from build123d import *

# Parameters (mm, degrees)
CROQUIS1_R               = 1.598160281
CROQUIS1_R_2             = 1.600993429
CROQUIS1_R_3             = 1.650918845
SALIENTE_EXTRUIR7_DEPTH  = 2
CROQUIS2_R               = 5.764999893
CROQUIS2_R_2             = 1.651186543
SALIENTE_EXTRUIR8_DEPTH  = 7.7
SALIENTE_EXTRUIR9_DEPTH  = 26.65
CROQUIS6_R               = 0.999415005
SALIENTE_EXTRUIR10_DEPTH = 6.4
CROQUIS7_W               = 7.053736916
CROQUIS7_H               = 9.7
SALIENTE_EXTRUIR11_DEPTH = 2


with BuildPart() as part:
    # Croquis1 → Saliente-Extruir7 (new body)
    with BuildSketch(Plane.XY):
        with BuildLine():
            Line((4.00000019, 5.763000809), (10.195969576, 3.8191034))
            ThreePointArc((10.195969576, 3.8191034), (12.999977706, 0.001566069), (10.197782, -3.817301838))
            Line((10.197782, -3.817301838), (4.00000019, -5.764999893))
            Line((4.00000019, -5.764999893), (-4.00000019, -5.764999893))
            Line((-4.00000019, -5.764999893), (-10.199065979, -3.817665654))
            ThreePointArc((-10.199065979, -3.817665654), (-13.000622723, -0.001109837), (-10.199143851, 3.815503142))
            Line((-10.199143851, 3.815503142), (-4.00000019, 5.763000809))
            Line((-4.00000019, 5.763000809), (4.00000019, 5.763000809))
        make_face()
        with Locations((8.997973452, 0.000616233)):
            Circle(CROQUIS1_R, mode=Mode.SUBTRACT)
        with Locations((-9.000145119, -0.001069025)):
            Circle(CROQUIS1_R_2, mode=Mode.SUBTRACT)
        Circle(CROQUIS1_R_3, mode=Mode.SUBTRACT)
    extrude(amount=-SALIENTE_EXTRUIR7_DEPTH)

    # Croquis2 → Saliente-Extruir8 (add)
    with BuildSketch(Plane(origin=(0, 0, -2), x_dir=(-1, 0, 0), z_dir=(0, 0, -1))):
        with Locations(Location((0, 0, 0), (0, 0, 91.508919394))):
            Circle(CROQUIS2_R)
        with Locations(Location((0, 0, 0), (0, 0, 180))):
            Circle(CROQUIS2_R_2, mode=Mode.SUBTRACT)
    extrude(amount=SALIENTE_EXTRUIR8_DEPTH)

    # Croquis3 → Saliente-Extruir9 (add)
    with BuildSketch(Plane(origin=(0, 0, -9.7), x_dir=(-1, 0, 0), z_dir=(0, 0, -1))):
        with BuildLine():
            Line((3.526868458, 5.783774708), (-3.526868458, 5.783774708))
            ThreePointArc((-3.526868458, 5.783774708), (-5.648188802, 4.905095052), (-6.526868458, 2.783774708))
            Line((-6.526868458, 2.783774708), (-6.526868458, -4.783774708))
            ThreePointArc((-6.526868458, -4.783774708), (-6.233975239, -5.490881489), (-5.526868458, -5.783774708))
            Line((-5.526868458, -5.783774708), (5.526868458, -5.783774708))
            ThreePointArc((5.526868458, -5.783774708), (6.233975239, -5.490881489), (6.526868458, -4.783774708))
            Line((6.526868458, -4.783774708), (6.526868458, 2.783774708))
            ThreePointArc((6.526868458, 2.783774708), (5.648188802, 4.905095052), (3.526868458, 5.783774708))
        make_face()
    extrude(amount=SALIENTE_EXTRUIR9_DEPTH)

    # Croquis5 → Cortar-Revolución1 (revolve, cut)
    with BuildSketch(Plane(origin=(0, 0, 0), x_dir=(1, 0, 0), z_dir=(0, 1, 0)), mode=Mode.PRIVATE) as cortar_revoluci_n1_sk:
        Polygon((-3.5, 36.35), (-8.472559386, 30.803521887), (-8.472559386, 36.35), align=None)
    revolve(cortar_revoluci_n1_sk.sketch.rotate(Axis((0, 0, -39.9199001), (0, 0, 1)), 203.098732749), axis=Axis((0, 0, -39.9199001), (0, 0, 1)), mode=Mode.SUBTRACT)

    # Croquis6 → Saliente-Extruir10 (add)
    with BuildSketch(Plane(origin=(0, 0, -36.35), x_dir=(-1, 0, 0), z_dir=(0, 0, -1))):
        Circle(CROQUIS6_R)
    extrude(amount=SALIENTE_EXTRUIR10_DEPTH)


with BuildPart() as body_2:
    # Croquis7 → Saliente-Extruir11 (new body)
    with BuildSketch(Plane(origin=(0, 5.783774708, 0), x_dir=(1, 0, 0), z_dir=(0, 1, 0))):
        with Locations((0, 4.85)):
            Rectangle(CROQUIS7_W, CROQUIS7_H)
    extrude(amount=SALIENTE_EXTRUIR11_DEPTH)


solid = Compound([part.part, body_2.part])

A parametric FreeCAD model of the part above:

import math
import FreeCAD as App
import Part
import Sketcher

doc = App.newDocument("Part")
params = doc.addObject("Spreadsheet::Sheet", "Params")
for row, (alias, value) in enumerate([
    ("sketch1_width", "8 mm"),
    ("pad1_length", "2 mm"),
    ("sketch2_diameter", "11.53 mm"),
    ("pad2_length", "7.7 mm"),
    ("sketch3_radius", "3 mm"),
    ("sketch3_radius2", "1 mm"),
    ("pad3_length", "26.65 mm"),
    ("groove_angle", "360 deg"),
    ("pad4_length", "6.4 mm"),
    ("sketch6_height", "9.7 mm"),
    ("pad5_length", "2 mm"),
], start=1):
    params.set(f"A{row}", alias)
    params.set(f"B{row}", "=" + value)
    params.setAlias(f"B{row}", alias)

body = doc.addObject("PartDesign::Body", "Body")

sketch1 = doc.addObject("Sketcher::SketchObject", "Sketch")
body.addObject(sketch1)
sketch1.AttachmentSupport = (doc.XY_Plane, [""])
sketch1.MapMode = "FlatFace"
sketch1.addGeometry([
    Part.LineSegment(App.Vector(10.2, 3.8, 0), App.Vector(4, 5.8, 0)),
    Part.LineSegment(App.Vector(4, 5.8, 0), App.Vector(-4, 5.8, 0)),
    Part.LineSegment(App.Vector(-4, 5.8, 0), App.Vector(-10.2, 3.8, 0)),
    Part.ArcOfCircle(Part.Circle(App.Vector(-9, 0, 0), App.Vector(0, 0, 1), 4), math.radians(107), math.radians(253)),
    Part.LineSegment(App.Vector(-10.2, -3.8, 0), App.Vector(-4, -5.8, 0)),
    Part.LineSegment(App.Vector(-4, -5.8, 0), App.Vector(4, -5.8, 0)),
    Part.LineSegment(App.Vector(4, -5.8, 0), App.Vector(10.2, -3.8, 0)),
    Part.ArcOfCircle(Part.Circle(App.Vector(9, 0, 0), App.Vector(0, 0, 1), 4), math.radians(-73), math.radians(73)),
    Part.Circle(App.Vector(-9, 0, 0), App.Vector(0, 0, 1), 1.6),
    Part.Circle(App.Vector(9, 0, 0), App.Vector(0, 0, 1), 1.6),
    Part.Circle(App.Vector(0, 0, 0), App.Vector(0, 0, 1), 1.7),
], False)
sketch1.addConstraint([
    Sketcher.Constraint("Coincident", 0, 2, 1, 1),
    Sketcher.Constraint("Coincident", 1, 2, 2, 1),
    Sketcher.Constraint("Tangent", 2, 2, 3, 1),
    Sketcher.Constraint("Tangent", 3, 2, 4, 1),
    Sketcher.Constraint("Coincident", 4, 2, 5, 1),
    Sketcher.Constraint("Coincident", 5, 2, 6, 1),
    Sketcher.Constraint("Tangent", 6, 2, 7, 1),
    Sketcher.Constraint("Tangent", 7, 2, 0, 1),
    Sketcher.Constraint("Horizontal", 1),
    Sketcher.Constraint("Horizontal", 5),
    Sketcher.Constraint("Coincident", 10, 3, -1, 1),
    Sketcher.Constraint("Coincident", 8, 3, 3, 3),
    Sketcher.Constraint("Coincident", 9, 3, 7, 3),
    Sketcher.Constraint("Vertical", 1, 2, 4, 2),
    Sketcher.Constraint("Vertical", 0, 2, 5, 2),
    Sketcher.Constraint("DistanceX", 1, 2, 1, 1, 8.0),
    Sketcher.Constraint("DistanceX", -1, 1, 0, 2, 4.0),
    Sketcher.Constraint("Diameter", 9, 3.196321),
    Sketcher.Constraint("Diameter", 8, 3.201987),
    Sketcher.Constraint("Diameter", 10, 3.301838),
    Sketcher.Constraint("DistanceY", -1, 1, 0, 2, 5.763001),
    Sketcher.Constraint("DistanceY", 4, 2, -1, 1, 5.765),
    Sketcher.Constraint("Radius", 3, 4.000478),
    Sketcher.Constraint("Radius", 7, 4.002004),
    Sketcher.Constraint("DistanceX", 2, 2, 3, 3, 1.198999),
    Sketcher.Constraint("DistanceY", 6, 2, -1, 1, 3.817302),
    Sketcher.Constraint("Distance", 0, 6.493749),
    Sketcher.Constraint("DistanceY", 3, 3, -1, 1, 0.001069),
])
sketch1.setExpression("Constraints[15]", "Params.sketch1_width")
pad1 = doc.addObject("PartDesign::Pad", "Pad")
body.addObject(pad1)
pad1.Profile = sketch1
pad1.setExpression("Length", "Params.pad1_length")
pad1.Reversed = True

sketch2 = doc.addObject("Sketcher::SketchObject", "Sketch001")
body.addObject(sketch2)
sketch2.AttachmentSupport = (doc.XY_Plane, [""])
sketch2.MapMode = "FlatFace"
sketch2.AttachmentOffset = App.Placement(App.Vector(0, 0, -2), App.Rotation())
sketch2.addGeometry([
    Part.Circle(App.Vector(0, 0, 0), App.Vector(0, 0, 1), 5.8),
    Part.Circle(App.Vector(0, 0, 0), App.Vector(0, 0, 1), 1.7),
], False)
sketch2.addConstraint([
    Sketcher.Constraint("Coincident", 0, 3, -1, 1),
    Sketcher.Constraint("Coincident", 1, 3, -1, 1),
    Sketcher.Constraint("Diameter", 0, 11.53),
    Sketcher.Constraint("Diameter", 1, 3.302373),
])
sketch2.setExpression("Constraints[2]", "Params.sketch2_diameter")
pad2 = doc.addObject("PartDesign::Pad", "Pad001")
body.addObject(pad2)
pad2.Profile = sketch2
pad2.setExpression("Length", "Params.pad2_length")
pad2.Reversed = True

sketch3 = doc.addObject("Sketcher::SketchObject", "Sketch002")
body.addObject(sketch3)
sketch3.AttachmentSupport = (doc.XY_Plane, [""])
sketch3.MapMode = "FlatFace"
sketch3.AttachmentOffset = App.Placement(App.Vector(0, 0, -9.7), App.Rotation())
sketch3.addGeometry([
    Part.LineSegment(App.Vector(-3.5, 5.8, 0), App.Vector(3.5, 5.8, 0)),
    Part.ArcOfCircle(Part.Circle(App.Vector(3.5, 2.8, 0), App.Vector(0, 0, 1), 3), math.radians(0), math.radians(90)),
    Part.LineSegment(App.Vector(6.5, 2.8, 0), App.Vector(6.5, -4.8, 0)),
    Part.ArcOfCircle(Part.Circle(App.Vector(5.5, -4.8, 0), App.Vector(0, 0, 1), 1), math.radians(-90), math.radians(0)),
    Part.LineSegment(App.Vector(5.5, -5.8, 0), App.Vector(-5.5, -5.8, 0)),
    Part.ArcOfCircle(Part.Circle(App.Vector(-5.5, -4.8, 0), App.Vector(0, 0, 1), 1), math.radians(-180), math.radians(-90)),
    Part.LineSegment(App.Vector(-6.5, -4.8, 0), App.Vector(-6.5, 2.8, 0)),
    Part.ArcOfCircle(Part.Circle(App.Vector(-3.5, 2.8, 0), App.Vector(0, 0, 1), 3), math.radians(90), math.radians(180)),
], False)
sketch3.addConstraint([
    Sketcher.Constraint("Tangent", 0, 2, 1, 2),
    Sketcher.Constraint("Tangent", 1, 1, 2, 1),
    Sketcher.Constraint("Tangent", 2, 2, 3, 2),
    Sketcher.Constraint("Tangent", 3, 1, 4, 1),
    Sketcher.Constraint("Tangent", 4, 2, 5, 2),
    Sketcher.Constraint("Tangent", 5, 1, 6, 1),
    Sketcher.Constraint("Tangent", 6, 2, 7, 2),
    Sketcher.Constraint("Tangent", 7, 1, 0, 1),
    Sketcher.Constraint("Horizontal", 0),
    Sketcher.Constraint("Vertical", 2),
    Sketcher.Constraint("Horizontal", 4),
    Sketcher.Constraint("Vertical", 6),
    Sketcher.Constraint("Equal", 3, 5),
    Sketcher.Constraint("Equal", 1, 7),
    Sketcher.Constraint("Radius", 1, 3.0),
    Sketcher.Constraint("Radius", 3, 1.0),
    Sketcher.Constraint("DistanceY", 2, 2, 2, 1, 7.567549),
    Sketcher.Constraint("DistanceX", 0, 1, 0, 2, 7.053737),
    Sketcher.Constraint("DistanceX", -1, 1, 1, 3, 3.526868),
    Sketcher.Constraint("DistanceY", -1, 1, 1, 3, 2.783775),
])
sketch3.setExpression("Constraints[14]", "Params.sketch3_radius")
sketch3.setExpression("Constraints[15]", "Params.sketch3_radius2")
pad3 = doc.addObject("PartDesign::Pad", "Pad002")
body.addObject(pad3)
pad3.Profile = sketch3
pad3.setExpression("Length", "Params.pad3_length")
pad3.Reversed = True

sketch4 = doc.addObject("Sketcher::SketchObject", "Sketch003")
body.addObject(sketch4)
sketch4.AttachmentSupport = (doc.XZ_Plane, [""])
sketch4.MapMode = "FlatFace"
sketch4.addGeometry([
    Part.LineSegment(App.Vector(-8.5, -30.8, 0), App.Vector(-3.5, -36.4, 0)),
    Part.LineSegment(App.Vector(-3.5, -36.4, 0), App.Vector(-8.5, -36.4, 0)),
    Part.LineSegment(App.Vector(-8.5, -36.4, 0), App.Vector(-8.5, -30.8, 0)),
], False)
sketch4.addConstraint([
    Sketcher.Constraint("Coincident", 0, 2, 1, 1),
    Sketcher.Constraint("Coincident", 1, 2, 2, 1),
    Sketcher.Constraint("Coincident", 2, 2, 0, 1),
    Sketcher.Constraint("Horizontal", 1),
    Sketcher.Constraint("Vertical", 2),
    Sketcher.Constraint("DistanceX", 0, 2, -1, 1, 3.5),
    Sketcher.Constraint("DistanceY", 0, 2, -1, 1, 36.35),
    Sketcher.Constraint("DistanceX", 1, 2, 1, 1, 4.972559),
    Sketcher.Constraint("DistanceY", 2, 1, 2, 2, 5.546478),
])
groove = doc.addObject("PartDesign::Groove", "Groove")
body.addObject(groove)
groove.Profile = sketch4
groove.ReferenceAxis = (sketch4, ["V_Axis"])
groove.setExpression("Angle", "Params.groove_angle")

sketch5 = doc.addObject("Sketcher::SketchObject", "Sketch004")
body.addObject(sketch5)
sketch5.AttachmentSupport = (doc.XY_Plane, [""])
sketch5.MapMode = "FlatFace"
sketch5.AttachmentOffset = App.Placement(App.Vector(0, 0, -36.35), App.Rotation())
sketch5.addGeometry(Part.Circle(App.Vector(0, 0, 0), App.Vector(0, 0, 1), 1), False)
sketch5.addConstraint([
    Sketcher.Constraint("Coincident", 0, 3, -1, 1),
    Sketcher.Constraint("Diameter", 0, 1.99883),
])
pad4 = doc.addObject("PartDesign::Pad", "Pad003")
body.addObject(pad4)
pad4.Profile = sketch5
pad4.setExpression("Length", "Params.pad4_length")
pad4.Reversed = True
body2 = doc.addObject("PartDesign::Body", "Body001")

sketch6 = doc.addObject("Sketcher::SketchObject", "Sketch005")
body2.addObject(sketch6)
sketch6.AttachmentSupport = (doc.getObject("XZ_Plane001"), [""])
sketch6.MapMode = "FlatFace"
sketch6.AttachmentOffset = App.Placement(App.Vector(0, 0, -5.783775), App.Rotation())
sketch6.addGeometry([
    Part.LineSegment(App.Vector(-4, -10, 0), App.Vector(-4, 0, 0)),
    Part.LineSegment(App.Vector(-4, 0, 0), App.Vector(4, 0, 0)),
    Part.LineSegment(App.Vector(4, 0, 0), App.Vector(4, -10, 0)),
    Part.LineSegment(App.Vector(4, -10, 0), App.Vector(-4, -10, 0)),
], False)
sketch6.addConstraint([
    Sketcher.Constraint("Coincident", 0, 2, 1, 1),
    Sketcher.Constraint("Coincident", 1, 2, 2, 1),
    Sketcher.Constraint("Coincident", 2, 2, 3, 1),
    Sketcher.Constraint("Coincident", 3, 2, 0, 1),
    Sketcher.Constraint("Vertical", 0),
    Sketcher.Constraint("Horizontal", 1),
    Sketcher.Constraint("Vertical", 2),
    Sketcher.Constraint("Horizontal", 3),
    Sketcher.Constraint("Symmetric", 0, 2, 1, 2, -1, 1),
    Sketcher.Constraint("DistanceY", 0, 1, 0, 2, 9.7),
    Sketcher.Constraint("DistanceX", 1, 1, 1, 2, 7.053737),
])
sketch6.setExpression("Constraints[9]", "Params.sketch6_height")
pad5 = doc.addObject("PartDesign::Pad", "Pad004")
body2.addObject(pad5)
pad5.Profile = sketch6
pad5.setExpression("Length", "Params.pad5_length")
pad5.Reversed = True

doc.recompute()
